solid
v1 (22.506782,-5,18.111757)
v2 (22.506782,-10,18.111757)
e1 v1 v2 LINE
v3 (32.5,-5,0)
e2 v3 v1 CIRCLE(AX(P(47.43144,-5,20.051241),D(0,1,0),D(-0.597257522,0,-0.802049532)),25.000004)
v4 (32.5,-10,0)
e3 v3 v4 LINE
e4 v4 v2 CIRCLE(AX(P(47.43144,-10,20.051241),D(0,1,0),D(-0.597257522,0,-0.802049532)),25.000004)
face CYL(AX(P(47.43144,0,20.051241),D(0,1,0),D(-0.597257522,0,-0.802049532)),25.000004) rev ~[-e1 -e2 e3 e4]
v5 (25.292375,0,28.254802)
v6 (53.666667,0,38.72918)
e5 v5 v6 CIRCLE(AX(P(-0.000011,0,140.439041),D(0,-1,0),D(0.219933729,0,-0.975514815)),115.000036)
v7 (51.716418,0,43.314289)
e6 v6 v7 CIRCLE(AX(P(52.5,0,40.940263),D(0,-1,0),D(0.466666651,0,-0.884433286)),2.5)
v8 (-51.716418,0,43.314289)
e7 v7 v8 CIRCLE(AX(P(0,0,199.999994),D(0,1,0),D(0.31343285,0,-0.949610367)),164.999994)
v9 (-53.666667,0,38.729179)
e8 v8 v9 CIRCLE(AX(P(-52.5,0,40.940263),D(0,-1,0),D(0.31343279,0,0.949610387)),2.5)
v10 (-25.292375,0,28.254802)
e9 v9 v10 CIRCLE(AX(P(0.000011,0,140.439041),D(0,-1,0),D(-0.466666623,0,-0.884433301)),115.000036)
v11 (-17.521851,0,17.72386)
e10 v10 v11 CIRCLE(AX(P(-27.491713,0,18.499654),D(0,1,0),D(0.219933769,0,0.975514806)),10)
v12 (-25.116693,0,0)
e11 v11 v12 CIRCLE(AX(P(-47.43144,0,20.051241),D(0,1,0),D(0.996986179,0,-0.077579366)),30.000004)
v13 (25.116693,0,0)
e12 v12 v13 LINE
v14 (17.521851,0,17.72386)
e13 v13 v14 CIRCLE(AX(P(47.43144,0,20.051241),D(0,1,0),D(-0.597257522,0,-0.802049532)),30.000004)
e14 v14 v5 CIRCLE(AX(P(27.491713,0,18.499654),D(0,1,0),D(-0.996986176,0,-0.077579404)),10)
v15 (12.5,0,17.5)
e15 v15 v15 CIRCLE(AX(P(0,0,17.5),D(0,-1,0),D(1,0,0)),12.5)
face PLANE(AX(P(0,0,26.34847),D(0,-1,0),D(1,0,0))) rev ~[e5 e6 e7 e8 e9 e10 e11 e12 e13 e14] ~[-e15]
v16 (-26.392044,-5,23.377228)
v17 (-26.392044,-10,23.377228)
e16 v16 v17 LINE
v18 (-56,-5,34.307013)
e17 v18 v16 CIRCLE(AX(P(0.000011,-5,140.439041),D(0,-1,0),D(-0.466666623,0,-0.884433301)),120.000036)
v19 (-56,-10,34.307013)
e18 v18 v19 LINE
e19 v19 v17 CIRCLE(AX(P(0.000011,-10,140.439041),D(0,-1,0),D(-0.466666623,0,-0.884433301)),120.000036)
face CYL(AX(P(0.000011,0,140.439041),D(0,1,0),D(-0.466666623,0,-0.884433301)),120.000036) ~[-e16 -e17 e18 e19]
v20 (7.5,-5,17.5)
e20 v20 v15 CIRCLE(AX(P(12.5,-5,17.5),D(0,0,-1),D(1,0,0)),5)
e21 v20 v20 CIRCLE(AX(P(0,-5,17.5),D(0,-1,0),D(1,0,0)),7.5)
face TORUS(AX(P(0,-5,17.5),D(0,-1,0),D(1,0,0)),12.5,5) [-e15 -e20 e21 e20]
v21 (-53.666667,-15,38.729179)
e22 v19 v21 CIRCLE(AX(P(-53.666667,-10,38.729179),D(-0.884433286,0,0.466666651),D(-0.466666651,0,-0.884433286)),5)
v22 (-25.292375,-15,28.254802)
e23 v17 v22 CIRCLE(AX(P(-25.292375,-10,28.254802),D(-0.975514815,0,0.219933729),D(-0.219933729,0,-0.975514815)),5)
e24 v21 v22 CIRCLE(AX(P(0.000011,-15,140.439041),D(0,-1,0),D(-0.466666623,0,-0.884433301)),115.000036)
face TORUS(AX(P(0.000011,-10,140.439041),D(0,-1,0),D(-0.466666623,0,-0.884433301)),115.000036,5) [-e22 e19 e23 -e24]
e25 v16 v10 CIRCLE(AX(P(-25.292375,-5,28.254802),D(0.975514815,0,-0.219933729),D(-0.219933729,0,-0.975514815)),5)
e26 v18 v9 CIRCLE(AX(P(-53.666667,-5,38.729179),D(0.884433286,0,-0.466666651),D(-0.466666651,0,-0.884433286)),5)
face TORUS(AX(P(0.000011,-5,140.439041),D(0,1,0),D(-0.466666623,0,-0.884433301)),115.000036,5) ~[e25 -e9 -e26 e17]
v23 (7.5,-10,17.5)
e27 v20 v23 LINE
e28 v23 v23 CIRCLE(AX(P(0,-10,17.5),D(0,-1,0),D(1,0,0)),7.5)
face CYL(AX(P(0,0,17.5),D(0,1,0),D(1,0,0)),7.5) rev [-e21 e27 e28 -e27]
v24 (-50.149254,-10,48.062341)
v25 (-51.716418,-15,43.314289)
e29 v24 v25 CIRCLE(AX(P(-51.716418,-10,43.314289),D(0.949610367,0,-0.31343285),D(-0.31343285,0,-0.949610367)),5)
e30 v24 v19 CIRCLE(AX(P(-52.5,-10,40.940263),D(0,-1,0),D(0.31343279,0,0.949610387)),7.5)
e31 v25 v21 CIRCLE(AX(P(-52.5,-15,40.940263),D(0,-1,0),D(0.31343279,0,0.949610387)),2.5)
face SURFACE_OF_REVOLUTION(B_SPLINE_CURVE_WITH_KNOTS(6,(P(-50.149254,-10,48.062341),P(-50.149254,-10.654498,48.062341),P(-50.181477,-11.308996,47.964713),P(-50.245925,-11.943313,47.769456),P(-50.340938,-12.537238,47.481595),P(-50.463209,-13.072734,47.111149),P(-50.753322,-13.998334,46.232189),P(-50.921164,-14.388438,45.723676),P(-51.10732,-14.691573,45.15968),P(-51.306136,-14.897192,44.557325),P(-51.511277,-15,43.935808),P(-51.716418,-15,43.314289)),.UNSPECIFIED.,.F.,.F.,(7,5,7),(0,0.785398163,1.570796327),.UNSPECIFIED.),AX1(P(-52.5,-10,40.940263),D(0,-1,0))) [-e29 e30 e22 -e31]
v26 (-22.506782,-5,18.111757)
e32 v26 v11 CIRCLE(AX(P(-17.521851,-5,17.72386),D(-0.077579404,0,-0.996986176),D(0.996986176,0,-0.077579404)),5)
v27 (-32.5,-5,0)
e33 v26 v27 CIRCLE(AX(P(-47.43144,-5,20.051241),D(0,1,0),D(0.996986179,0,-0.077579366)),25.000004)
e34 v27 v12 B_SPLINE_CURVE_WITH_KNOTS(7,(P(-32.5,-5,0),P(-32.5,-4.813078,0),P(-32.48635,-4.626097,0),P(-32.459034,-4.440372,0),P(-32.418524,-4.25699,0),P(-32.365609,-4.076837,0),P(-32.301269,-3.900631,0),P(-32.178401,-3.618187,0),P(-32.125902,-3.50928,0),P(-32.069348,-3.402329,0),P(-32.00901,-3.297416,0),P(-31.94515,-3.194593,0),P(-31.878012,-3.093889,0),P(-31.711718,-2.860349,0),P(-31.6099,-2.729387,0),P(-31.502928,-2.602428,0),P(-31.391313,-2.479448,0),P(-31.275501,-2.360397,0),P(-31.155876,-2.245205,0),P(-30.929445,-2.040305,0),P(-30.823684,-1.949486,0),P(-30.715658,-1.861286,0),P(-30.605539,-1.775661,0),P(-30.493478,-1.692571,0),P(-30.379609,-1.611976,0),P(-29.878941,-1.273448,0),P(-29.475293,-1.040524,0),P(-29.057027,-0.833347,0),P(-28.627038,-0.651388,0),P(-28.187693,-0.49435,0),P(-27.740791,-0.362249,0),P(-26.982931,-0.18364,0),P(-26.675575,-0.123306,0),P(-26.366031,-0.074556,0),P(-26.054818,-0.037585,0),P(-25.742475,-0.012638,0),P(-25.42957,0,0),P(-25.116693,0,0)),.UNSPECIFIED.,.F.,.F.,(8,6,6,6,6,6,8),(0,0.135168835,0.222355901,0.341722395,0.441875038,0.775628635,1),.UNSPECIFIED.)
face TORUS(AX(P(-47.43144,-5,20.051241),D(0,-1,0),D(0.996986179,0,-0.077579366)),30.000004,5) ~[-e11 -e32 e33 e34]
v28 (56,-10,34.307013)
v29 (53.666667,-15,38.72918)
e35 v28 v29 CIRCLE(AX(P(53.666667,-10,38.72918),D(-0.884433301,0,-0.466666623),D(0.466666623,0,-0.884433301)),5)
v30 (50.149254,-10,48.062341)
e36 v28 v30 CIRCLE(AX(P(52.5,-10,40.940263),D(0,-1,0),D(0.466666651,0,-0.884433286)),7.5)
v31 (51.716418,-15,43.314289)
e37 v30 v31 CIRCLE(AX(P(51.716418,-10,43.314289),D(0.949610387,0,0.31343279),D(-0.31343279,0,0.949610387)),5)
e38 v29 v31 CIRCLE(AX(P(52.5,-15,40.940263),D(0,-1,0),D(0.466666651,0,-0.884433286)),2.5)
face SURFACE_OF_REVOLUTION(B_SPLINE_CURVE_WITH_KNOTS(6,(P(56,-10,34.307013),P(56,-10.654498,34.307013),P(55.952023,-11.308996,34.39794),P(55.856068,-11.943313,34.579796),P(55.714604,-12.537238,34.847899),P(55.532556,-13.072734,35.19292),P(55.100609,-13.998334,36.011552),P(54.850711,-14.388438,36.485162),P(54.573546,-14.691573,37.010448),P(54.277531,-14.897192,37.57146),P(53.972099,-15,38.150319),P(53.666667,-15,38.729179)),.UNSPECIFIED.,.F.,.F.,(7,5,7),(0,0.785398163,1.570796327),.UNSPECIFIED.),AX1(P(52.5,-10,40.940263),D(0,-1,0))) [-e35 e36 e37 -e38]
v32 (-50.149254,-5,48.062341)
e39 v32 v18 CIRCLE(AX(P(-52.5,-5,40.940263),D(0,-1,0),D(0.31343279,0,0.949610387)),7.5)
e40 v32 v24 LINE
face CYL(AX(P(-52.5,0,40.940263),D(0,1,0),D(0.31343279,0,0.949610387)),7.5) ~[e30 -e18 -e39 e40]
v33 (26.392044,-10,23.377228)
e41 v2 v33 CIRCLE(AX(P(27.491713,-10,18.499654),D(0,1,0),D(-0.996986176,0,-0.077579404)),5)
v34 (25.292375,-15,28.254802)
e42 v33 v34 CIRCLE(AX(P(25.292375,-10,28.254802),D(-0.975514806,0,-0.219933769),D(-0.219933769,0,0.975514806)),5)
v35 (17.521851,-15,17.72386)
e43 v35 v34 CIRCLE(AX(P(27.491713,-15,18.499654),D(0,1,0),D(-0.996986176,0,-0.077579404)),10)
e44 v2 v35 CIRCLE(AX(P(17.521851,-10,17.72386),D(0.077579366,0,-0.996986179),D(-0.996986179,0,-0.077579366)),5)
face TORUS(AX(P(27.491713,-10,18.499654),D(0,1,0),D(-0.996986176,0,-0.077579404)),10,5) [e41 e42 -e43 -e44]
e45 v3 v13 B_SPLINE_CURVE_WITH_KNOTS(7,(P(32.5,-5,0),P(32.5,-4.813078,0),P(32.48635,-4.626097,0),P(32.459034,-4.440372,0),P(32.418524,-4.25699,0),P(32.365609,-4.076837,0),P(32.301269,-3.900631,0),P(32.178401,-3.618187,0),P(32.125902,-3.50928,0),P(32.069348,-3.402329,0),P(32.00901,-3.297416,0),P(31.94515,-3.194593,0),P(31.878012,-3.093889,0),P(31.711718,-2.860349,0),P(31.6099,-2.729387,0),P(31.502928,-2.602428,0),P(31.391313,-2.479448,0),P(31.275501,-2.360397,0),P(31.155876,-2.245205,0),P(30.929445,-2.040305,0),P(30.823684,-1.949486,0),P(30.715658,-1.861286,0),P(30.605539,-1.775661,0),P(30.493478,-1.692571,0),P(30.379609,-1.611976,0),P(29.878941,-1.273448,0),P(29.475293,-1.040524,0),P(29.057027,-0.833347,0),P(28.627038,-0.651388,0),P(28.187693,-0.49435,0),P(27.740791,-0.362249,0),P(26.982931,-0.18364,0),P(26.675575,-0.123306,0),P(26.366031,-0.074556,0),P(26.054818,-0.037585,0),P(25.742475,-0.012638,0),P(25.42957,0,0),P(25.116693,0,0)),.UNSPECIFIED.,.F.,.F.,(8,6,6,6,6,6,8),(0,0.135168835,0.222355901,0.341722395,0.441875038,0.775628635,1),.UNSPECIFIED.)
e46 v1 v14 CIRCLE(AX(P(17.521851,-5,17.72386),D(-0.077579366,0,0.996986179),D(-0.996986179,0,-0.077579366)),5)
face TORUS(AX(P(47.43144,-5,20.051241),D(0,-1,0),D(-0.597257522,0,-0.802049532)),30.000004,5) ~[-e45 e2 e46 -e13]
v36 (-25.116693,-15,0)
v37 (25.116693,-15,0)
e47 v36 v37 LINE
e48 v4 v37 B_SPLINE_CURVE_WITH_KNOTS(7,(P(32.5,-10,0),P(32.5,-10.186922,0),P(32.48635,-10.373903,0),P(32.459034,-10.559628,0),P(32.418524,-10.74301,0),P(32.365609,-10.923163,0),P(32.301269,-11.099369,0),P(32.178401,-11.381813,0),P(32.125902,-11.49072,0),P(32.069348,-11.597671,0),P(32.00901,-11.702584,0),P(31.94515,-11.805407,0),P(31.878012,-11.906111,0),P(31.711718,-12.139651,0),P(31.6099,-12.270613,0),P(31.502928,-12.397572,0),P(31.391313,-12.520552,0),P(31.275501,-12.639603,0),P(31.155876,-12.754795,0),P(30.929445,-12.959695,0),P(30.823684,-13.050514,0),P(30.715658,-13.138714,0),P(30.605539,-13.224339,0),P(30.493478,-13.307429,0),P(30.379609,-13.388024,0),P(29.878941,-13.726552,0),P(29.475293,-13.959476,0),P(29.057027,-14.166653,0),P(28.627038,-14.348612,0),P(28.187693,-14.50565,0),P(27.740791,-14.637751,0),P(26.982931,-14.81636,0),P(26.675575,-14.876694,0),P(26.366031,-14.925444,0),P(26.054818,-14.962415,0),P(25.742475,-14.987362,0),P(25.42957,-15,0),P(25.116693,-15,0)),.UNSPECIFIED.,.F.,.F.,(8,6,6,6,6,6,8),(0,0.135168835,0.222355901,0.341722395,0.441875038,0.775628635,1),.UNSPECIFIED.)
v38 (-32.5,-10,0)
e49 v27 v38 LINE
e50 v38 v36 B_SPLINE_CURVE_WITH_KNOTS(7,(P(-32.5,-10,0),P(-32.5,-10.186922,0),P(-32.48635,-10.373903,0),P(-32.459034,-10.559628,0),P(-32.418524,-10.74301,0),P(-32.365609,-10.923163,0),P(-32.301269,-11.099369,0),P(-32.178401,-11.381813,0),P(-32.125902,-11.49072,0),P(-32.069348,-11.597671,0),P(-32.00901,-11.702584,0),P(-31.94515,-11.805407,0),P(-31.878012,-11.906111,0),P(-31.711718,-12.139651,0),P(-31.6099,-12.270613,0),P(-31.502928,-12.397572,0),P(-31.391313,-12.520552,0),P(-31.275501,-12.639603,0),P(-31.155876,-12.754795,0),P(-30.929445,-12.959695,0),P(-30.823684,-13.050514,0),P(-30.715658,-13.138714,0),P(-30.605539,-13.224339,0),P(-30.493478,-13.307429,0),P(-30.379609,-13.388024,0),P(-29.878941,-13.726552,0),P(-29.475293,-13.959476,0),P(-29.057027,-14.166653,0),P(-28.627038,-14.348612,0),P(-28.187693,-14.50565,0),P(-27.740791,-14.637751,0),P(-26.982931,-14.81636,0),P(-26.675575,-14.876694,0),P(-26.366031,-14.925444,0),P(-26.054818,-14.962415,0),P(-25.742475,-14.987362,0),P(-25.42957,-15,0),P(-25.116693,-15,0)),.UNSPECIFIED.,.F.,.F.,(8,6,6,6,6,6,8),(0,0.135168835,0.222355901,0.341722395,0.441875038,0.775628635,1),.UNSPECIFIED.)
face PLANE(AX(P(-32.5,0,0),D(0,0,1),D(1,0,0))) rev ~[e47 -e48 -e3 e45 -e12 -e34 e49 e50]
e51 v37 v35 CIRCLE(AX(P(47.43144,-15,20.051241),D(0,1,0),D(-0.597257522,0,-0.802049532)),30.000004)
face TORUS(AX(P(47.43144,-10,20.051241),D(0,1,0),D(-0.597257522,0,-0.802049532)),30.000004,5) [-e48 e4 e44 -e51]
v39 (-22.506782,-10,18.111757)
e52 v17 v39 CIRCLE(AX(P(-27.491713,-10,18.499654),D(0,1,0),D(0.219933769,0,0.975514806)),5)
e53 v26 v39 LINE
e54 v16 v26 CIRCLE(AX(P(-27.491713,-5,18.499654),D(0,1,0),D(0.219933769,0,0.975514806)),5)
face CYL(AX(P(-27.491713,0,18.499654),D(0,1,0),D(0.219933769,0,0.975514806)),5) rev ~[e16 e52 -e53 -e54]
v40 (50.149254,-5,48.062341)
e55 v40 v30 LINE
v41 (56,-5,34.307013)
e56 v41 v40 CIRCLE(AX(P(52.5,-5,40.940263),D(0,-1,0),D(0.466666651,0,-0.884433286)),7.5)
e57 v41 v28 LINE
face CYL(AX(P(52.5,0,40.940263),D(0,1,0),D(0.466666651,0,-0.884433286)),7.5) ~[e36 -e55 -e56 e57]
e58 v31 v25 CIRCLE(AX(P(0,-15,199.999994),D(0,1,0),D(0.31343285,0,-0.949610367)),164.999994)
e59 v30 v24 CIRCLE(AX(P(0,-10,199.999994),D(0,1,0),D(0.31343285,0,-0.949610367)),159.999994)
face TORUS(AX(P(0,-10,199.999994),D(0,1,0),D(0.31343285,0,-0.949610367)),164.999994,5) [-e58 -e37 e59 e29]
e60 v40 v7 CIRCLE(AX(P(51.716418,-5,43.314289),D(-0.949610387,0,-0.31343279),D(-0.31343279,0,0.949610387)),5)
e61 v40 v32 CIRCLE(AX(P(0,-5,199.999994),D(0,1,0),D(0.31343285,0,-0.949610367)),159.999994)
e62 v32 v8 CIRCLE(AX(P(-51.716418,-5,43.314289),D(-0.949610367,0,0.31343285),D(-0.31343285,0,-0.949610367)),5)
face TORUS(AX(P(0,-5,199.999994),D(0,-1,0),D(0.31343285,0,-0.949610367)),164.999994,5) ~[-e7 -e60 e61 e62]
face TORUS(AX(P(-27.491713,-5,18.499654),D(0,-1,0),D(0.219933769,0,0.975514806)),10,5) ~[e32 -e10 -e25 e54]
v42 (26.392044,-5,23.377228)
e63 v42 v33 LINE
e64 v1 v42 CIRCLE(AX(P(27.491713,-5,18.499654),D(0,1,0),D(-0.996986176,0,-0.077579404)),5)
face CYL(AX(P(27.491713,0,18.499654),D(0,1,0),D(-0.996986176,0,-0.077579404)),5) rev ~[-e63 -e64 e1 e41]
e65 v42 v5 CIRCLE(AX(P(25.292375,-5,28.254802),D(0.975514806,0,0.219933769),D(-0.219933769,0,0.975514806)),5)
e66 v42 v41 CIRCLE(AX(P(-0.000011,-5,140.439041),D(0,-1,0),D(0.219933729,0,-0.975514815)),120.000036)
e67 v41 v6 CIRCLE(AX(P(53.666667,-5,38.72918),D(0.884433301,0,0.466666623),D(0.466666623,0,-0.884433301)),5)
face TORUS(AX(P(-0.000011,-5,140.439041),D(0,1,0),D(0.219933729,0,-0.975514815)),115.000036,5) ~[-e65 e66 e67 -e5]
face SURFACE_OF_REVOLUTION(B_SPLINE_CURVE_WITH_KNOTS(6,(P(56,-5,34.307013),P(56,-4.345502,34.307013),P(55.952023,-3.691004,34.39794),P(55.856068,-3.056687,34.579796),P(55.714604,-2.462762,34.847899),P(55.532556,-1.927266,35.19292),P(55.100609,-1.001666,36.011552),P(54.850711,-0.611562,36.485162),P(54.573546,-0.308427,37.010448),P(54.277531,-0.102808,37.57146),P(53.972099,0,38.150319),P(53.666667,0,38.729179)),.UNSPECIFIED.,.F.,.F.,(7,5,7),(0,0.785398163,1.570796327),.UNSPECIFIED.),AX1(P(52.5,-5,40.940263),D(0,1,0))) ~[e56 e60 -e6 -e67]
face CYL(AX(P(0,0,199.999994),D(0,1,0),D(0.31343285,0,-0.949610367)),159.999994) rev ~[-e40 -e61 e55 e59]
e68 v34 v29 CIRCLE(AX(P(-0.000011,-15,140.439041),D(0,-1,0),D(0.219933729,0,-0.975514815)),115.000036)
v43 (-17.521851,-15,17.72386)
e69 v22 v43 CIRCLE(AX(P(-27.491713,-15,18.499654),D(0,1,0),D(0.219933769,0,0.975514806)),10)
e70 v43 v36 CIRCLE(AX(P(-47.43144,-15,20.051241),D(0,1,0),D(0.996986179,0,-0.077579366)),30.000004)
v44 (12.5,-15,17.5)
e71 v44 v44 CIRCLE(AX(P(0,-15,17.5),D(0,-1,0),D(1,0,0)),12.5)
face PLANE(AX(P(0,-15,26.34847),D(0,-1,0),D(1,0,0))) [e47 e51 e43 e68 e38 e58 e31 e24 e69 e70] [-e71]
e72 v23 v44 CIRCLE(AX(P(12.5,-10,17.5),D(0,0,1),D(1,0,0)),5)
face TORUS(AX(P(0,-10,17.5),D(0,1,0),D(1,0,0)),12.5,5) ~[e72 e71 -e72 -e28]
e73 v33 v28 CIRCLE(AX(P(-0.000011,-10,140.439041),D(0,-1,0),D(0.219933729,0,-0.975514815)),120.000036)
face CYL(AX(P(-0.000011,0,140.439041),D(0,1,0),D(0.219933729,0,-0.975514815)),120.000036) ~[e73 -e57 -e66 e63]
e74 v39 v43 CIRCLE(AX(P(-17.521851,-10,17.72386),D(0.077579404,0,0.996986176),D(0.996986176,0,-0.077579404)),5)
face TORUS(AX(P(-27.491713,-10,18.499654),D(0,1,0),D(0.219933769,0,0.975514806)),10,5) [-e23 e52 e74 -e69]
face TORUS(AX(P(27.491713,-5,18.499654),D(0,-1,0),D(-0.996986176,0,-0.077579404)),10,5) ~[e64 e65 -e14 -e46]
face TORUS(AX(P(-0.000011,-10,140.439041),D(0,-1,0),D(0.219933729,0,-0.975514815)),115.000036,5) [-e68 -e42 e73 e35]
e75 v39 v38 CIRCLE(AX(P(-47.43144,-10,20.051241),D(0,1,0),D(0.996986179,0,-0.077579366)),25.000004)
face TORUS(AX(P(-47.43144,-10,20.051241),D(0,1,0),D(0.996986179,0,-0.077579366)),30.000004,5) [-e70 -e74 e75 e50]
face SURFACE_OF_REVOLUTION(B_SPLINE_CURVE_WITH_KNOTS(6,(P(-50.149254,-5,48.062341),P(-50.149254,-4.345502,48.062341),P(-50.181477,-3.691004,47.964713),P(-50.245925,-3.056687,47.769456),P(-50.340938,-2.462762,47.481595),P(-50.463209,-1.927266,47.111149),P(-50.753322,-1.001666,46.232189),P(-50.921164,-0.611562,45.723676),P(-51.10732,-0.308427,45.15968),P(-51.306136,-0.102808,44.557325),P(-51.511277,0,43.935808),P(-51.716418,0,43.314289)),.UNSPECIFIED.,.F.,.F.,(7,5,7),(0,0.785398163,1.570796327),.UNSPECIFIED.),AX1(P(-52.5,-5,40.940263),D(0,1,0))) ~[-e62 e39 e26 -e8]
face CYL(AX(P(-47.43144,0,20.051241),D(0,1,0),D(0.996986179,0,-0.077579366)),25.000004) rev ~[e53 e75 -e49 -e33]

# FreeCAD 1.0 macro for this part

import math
import FreeCAD as App
import Part
import Sketcher
from FreeCAD import Vector
Q = App.Units.Quantity


def edges_at(feature, points):
    """Names of the edges that pass closest to the given points."""
    edges = feature.Shape.Edges
    near = lambda p: min(range(len(edges)), key=lambda i: edges[i].distToShape(Part.Vertex(*p))[0])
    return sorted({f"Edge{near(p) + 1}" for p in points})

doc = App.newDocument("Part")
params = doc.addObject("Spreadsheet::Sheet", "Params")
for row, (alias, value) in enumerate([
    ("sketch1_diameter", "15 mm"),
    ("sketch1_radius", "5 mm"),
    ("sketch1_width", "65 mm"),
    ("pad1_length", "15 mm"),
    ("fillet_radius", "5 mm"),
], start=1):
    params.set(f"A{row}", alias)
    params.set(f"B{row}", "=" + value)
    params.setAlias(f"B{row}", alias)

body = doc.addObject("PartDesign::Body", "Body")

sketch1 = body.newObject("Sketcher::SketchObject", "Sketch")
sketch1.AttachmentSupport = (doc.getObject("XZ_Plane"), [""])
sketch1.MapMode = "FlatFace"
sketch1.addGeometry([
    Part.ArcOfCircle(Part.Circle(Vector(0, 200, 0), Vector(0, 0, 1), 160), math.radians(-108), math.radians(-72)),
    Part.ArcOfCircle(Part.Circle(Vector(-52.5, 40.9, 0), Vector(0, 0, 1), 7.5), math.radians(72), math.radians(242)),
    Part.ArcOfCircle(Part.Circle(Vector(0, 140.4, 0), Vector(0, 0, 1), 120), math.radians(-117.82), math.radians(-102.71)),
    Part.ArcOfCircle(Part.Circle(Vector(-27.5, 18.5, 0), Vector(0, 0, 1), 5), math.radians(-4), math.radians(77)),
    Part.ArcOfCircle(Part.Circle(Vector(-47.4, 20.1, 0), Vector(0, 0, 1), 25), math.radians(-53), math.radians(-4)),
    Part.LineSegment(Vector(-32.5, 0, 0), Vector(32.5, 0, 0)),
    Part.ArcOfCircle(Part.Circle(Vector(47.4, 20.1, 0), Vector(0, 0, 1), 25), math.radians(-176), math.radians(-127)),
    Part.ArcOfCircle(Part.Circle(Vector(27.5, 18.5, 0), Vector(0, 0, 1), 5), math.radians(103), math.radians(184)),
    Part.ArcOfCircle(Part.Circle(Vector(0, 140.4, 0), Vector(0, 0, 1), 120), math.radians(-77.29), math.radians(-62.18)),
    Part.ArcOfCircle(Part.Circle(Vector(52.5, 40.9, 0), Vector(0, 0, 1), 7.5), math.radians(-62), math.radians(108)),
    Part.Circle(Vector(0, 17.5, 0), Vector(0, 0, 1), 7.5),
], False)
sketch1.addConstraint([
    Sketcher.Constraint("Tangent", 0, 1, 1, 1),
    Sketcher.Constraint("Tangent", 1, 2, 2, 1),
    Sketcher.Constraint("Tangent", 2, 2, 3, 2),
    Sketcher.Constraint("Tangent", 3, 1, 4, 2),
    Sketcher.Constraint("Coincident", 4, 1, 5, 1),
    Sketcher.Constraint("Coincident", 5, 2, 6, 2),
    Sketcher.Constraint("Tangent", 6, 1, 7, 2),
    Sketcher.Constraint("Tangent", 7, 1, 8, 1),
    Sketcher.Constraint("Tangent", 8, 2, 9, 1),
    Sketcher.Constraint("Tangent", 9, 2, 0, 2),
    Sketcher.Constraint("Horizontal", 5),
    Sketcher.Constraint("Equal", 4, 6),
    Sketcher.Constraint("Equal", 3, 7),
    Sketcher.Constraint("Equal", 2, 8),
    Sketcher.Constraint("Equal", 1, 9),
    Sketcher.Constraint("Equal", 9, 10),
    Sketcher.Constraint("Symmetric", 4, 1, 5, 2, -1, 1),
    Sketcher.Constraint("Symmetric", 3, 3, 7, 3, -2),
    Sketcher.Constraint("Symmetric", 1, 3, 9, 3, -2),
    Sketcher.Constraint("PointOnObject", 10, 3, -2),
    Sketcher.Constraint("Diameter", 10, Q("15 mm")),
    Sketcher.Constraint("Radius", 3, Q("5 mm")),
    Sketcher.Constraint("DistanceX", 5, 1, 5, 2, Q("65 mm")),
    Sketcher.Constraint("DistanceX", 1, 2, -1, 1, Q("56 mm")),
    Sketcher.Constraint("DistanceX", 1, 3, 9, 3, Q("105 mm")),
    Sketcher.Constraint("DistanceY", -1, 1, 10, 3, Q("17.5 mm")),
    Sketcher.Constraint("Radius", 0, Q("159.999994 mm")),
    Sketcher.Constraint("Radius", 2, Q("120.000036 mm")),
    Sketcher.Constraint("Radius", 4, Q("25.000004 mm")),
    Sketcher.Constraint("DistanceY", 4, 3, 2, 3, Q("120.387799 mm")),
    Sketcher.Constraint("DistanceX", 2, 3, 7, 3, Q("27.491701 mm")),
])
sketch1.setExpression("Constraints[20]", "Params.sketch1_diameter")
sketch1.setExpression("Constraints[21]", "Params.sketch1_radius")
sketch1.setExpression("Constraints[22]", "Params.sketch1_width")
pad1 = body.newObject("PartDesign::Pad", "Pad")
pad1.Profile = sketch1
pad1.setExpression("Length", "Params.pad1_length")
doc.recompute()

fillet = body.newObject("PartDesign::Fillet", "Fillet")
fillet.Base = (pad1, edges_at(pad1, [
    (0, -15, 40),
    (0, 0, 40),
    (-7.5, 0, 17.5),
    (-7.5, -15, 17.5),
]))
fillet.setExpression("Radius", "Params.fillet_radius")

doc.recompute()
